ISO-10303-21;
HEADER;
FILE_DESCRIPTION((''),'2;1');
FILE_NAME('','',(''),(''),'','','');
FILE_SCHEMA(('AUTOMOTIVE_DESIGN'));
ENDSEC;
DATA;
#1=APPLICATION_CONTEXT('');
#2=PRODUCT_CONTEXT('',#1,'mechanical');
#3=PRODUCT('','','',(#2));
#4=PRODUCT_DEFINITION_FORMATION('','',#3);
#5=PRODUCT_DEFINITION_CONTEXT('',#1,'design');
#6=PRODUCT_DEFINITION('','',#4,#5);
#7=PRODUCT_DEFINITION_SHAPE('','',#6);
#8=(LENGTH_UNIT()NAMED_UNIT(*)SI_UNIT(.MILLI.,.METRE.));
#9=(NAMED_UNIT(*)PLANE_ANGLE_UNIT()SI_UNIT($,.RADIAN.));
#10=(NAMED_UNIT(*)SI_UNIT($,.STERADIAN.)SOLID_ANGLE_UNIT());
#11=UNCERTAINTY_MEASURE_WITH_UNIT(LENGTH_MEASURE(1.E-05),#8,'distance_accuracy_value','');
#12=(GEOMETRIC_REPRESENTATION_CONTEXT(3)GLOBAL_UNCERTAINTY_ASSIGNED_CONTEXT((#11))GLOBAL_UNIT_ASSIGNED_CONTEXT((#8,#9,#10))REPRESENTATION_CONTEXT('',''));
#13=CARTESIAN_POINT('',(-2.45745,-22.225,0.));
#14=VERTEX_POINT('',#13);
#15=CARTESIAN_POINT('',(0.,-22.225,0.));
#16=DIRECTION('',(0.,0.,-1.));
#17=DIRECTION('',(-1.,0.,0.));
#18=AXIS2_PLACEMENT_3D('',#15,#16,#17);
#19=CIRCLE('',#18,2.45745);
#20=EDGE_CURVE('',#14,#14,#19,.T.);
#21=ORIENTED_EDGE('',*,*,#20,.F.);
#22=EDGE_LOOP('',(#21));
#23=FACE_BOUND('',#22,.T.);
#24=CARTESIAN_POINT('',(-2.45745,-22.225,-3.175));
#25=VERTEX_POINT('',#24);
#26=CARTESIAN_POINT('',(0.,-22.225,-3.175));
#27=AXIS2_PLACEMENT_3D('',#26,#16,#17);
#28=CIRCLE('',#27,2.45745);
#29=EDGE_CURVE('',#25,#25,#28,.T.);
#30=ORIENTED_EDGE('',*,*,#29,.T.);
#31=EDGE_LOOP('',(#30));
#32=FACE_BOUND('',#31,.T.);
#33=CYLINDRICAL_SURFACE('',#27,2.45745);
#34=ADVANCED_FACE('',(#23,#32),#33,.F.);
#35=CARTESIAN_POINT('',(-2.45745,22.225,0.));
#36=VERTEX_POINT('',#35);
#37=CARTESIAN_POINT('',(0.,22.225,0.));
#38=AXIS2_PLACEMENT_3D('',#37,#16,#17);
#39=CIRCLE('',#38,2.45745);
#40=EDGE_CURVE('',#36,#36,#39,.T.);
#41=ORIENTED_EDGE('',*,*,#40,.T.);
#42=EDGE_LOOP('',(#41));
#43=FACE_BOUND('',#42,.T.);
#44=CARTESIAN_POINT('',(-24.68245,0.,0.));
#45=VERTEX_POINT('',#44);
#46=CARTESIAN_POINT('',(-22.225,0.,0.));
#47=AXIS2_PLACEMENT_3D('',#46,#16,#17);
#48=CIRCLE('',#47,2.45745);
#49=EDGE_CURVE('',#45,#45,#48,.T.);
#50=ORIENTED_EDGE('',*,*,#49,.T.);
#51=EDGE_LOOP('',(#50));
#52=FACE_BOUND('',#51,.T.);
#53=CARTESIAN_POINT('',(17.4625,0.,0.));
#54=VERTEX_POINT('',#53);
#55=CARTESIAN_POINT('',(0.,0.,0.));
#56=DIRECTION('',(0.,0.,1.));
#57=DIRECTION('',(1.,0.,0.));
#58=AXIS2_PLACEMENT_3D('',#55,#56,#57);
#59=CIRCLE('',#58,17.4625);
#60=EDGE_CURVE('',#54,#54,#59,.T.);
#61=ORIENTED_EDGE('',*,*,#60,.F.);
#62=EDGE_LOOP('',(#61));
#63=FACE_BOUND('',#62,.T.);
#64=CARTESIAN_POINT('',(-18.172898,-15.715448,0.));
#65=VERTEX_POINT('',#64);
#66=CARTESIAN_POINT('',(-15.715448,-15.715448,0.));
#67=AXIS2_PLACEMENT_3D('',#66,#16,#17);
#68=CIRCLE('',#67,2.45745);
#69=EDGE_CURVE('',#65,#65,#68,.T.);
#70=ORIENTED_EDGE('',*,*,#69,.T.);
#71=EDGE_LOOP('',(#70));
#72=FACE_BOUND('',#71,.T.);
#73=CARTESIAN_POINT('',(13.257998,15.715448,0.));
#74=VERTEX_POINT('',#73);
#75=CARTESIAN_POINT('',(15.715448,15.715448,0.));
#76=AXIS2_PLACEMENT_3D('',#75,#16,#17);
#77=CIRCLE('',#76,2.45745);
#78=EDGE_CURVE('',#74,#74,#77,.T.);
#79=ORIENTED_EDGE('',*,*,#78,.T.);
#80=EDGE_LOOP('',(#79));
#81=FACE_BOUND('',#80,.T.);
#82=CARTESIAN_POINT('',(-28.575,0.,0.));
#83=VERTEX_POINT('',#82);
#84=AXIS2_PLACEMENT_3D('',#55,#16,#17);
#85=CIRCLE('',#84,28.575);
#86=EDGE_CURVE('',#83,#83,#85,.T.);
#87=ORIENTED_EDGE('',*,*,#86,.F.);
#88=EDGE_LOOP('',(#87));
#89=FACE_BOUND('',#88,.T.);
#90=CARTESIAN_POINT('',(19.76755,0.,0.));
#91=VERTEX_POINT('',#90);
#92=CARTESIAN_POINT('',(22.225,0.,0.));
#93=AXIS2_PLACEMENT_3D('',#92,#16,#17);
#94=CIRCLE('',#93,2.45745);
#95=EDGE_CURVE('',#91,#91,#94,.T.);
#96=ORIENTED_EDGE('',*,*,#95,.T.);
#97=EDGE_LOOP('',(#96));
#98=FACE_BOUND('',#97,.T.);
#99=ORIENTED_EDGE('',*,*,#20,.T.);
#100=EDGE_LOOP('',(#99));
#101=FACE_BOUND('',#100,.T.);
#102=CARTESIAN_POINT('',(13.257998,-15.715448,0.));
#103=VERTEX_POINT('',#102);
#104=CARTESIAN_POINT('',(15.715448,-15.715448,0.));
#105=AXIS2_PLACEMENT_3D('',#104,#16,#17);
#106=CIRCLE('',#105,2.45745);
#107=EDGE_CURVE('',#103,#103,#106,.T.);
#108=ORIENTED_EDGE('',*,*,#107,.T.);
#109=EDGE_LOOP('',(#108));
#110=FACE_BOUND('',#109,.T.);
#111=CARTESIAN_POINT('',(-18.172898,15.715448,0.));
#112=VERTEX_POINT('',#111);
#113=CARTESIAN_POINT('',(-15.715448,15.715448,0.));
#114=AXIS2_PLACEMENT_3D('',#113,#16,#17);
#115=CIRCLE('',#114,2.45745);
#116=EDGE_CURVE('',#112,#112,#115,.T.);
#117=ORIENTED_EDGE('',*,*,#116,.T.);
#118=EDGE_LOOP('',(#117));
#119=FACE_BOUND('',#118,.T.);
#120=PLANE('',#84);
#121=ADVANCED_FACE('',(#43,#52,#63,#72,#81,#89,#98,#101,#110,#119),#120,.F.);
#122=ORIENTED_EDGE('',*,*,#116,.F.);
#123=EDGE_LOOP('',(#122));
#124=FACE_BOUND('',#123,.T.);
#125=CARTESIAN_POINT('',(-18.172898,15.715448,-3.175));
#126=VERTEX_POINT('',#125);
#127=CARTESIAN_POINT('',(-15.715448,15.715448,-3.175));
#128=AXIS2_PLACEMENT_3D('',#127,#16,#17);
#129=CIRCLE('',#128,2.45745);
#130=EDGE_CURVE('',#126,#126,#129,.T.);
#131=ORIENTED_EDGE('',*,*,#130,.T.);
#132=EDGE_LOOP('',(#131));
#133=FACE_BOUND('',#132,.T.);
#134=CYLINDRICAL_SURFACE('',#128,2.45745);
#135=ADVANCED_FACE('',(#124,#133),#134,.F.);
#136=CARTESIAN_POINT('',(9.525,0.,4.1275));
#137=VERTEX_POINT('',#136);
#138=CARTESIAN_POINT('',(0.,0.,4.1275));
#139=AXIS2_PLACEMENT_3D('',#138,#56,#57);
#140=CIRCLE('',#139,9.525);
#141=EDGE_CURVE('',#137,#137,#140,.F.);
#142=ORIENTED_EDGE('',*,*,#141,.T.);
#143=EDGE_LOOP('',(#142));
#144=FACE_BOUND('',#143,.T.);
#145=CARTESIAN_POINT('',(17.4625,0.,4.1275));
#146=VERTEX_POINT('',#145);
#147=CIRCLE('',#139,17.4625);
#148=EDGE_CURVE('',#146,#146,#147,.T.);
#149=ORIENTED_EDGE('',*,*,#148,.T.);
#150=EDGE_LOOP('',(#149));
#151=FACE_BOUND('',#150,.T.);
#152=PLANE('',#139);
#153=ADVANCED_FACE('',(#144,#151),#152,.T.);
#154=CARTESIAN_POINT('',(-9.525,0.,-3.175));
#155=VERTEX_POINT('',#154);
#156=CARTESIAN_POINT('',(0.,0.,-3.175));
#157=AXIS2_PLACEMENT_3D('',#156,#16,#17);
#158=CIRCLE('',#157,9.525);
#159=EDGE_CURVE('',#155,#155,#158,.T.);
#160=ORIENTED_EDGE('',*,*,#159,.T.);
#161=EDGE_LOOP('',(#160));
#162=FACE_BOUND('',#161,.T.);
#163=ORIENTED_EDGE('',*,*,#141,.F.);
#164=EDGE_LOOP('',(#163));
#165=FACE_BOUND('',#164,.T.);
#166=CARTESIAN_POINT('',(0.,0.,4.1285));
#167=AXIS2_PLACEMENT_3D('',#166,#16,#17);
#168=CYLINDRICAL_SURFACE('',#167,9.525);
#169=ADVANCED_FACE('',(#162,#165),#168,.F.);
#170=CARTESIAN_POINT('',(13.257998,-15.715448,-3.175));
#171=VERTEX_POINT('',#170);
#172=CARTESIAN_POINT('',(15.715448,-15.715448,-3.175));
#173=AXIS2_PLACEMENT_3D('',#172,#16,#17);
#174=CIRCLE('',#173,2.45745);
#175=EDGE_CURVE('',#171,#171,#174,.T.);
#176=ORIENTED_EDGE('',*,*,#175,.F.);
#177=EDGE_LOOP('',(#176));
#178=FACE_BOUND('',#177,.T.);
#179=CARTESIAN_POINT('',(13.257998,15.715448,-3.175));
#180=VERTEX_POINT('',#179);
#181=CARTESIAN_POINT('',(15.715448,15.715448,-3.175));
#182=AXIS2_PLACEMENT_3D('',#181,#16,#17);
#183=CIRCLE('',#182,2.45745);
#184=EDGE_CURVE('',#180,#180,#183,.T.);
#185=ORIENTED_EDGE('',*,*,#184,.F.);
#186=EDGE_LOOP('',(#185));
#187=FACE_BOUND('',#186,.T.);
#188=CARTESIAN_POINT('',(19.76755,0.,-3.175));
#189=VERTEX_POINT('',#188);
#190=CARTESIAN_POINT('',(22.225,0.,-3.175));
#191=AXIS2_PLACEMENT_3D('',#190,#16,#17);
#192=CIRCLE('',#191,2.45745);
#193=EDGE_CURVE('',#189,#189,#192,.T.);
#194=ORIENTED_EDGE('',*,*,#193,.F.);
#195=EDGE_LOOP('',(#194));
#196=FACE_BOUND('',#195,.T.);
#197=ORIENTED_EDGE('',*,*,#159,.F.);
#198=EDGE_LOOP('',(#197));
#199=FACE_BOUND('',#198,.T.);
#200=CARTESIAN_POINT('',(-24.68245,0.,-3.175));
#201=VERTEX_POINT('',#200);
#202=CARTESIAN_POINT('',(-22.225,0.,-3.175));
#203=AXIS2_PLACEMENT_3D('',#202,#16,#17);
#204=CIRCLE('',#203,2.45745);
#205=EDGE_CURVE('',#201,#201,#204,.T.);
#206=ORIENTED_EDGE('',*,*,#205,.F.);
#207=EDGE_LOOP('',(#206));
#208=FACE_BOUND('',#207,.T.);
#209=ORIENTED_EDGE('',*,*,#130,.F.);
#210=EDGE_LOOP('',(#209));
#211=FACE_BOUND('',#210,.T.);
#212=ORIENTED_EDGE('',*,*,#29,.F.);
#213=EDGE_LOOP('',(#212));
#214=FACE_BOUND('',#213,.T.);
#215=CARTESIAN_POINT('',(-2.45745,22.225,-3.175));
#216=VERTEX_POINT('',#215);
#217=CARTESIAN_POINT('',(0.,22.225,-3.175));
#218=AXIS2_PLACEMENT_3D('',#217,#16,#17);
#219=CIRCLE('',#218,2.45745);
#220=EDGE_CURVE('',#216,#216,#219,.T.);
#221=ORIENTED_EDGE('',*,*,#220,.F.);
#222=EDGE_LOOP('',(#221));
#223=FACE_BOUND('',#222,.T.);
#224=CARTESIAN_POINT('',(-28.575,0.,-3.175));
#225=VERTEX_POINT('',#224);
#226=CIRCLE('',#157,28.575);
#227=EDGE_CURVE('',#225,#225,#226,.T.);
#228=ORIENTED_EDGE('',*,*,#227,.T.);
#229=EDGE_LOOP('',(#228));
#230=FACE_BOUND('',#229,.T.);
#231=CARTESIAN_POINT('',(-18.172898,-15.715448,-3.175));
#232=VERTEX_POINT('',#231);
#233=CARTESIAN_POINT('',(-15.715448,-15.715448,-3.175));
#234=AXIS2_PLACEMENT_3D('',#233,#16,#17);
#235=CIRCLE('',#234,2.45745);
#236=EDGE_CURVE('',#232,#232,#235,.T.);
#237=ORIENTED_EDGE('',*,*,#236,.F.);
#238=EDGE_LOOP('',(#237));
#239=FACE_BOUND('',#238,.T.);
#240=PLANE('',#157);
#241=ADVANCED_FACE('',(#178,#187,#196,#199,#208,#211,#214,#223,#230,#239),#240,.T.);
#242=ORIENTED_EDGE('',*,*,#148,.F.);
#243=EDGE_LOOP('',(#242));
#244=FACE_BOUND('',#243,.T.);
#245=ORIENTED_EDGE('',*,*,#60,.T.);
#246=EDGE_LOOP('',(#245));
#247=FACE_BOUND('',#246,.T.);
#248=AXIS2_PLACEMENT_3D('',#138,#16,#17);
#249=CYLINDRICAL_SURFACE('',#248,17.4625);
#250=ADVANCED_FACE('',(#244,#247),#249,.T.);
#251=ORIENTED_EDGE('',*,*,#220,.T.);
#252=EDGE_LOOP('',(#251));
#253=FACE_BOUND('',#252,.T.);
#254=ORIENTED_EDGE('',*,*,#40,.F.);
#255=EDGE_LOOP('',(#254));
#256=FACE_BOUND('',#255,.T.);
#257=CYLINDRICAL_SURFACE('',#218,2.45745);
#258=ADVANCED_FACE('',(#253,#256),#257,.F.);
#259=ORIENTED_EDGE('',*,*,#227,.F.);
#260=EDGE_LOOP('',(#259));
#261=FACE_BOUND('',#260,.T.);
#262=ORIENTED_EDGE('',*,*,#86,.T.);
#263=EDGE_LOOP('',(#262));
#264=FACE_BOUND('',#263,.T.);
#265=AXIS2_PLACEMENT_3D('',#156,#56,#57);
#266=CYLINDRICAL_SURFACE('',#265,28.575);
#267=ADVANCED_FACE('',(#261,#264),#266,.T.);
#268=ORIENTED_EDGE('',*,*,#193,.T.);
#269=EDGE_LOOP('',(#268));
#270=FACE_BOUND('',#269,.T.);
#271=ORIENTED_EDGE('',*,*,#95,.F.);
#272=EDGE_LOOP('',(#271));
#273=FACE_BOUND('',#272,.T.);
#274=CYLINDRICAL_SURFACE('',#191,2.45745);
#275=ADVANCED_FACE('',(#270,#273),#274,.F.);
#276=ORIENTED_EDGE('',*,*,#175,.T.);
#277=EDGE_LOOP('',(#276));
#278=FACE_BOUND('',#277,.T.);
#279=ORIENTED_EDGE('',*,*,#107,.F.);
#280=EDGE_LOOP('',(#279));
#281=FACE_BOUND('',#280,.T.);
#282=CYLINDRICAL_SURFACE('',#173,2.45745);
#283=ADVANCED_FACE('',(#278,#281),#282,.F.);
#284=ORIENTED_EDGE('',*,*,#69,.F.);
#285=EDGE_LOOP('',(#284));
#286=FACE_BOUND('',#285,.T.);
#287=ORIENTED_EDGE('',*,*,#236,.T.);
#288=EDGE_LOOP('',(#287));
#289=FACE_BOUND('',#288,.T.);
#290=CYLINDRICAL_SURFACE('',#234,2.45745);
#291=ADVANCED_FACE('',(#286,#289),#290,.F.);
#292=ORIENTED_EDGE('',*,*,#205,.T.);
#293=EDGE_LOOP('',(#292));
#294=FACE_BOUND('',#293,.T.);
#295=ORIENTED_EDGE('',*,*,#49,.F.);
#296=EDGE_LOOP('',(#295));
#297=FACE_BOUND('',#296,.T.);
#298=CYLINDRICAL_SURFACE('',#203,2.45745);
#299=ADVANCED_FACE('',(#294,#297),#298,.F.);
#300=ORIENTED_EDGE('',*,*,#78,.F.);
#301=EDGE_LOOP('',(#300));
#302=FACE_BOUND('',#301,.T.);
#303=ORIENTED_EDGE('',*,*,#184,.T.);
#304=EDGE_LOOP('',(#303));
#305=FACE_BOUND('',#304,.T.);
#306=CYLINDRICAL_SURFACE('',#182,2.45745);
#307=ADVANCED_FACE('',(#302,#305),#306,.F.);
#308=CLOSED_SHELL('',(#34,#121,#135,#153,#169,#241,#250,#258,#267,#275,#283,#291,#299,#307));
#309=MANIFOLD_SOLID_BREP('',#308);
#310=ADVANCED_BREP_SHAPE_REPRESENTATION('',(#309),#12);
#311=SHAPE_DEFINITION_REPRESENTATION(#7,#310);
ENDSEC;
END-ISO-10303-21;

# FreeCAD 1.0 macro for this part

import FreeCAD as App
import Part
import Sketcher
from FreeCAD import Vector
Q = App.Units.Quantity

doc = App.newDocument("Part")
params = doc.addObject("Spreadsheet::Sheet", "Params")
for row, (alias, value) in enumerate([
    ("sketch1_diameter", "1.375 in"),
    ("pad1_length", "0.1625 in"),
    ("sketch2_diameter", "2.25 in"),
    ("pad2_length", "0.125 in"),
    ("hole_diameter", "0.1935 in"),
    ("sketch4_diameter", "0.75 in"),
], start=1):
    params.set(f"A{row}", alias)
    params.set(f"B{row}", "=" + value)
    params.setAlias(f"B{row}", alias)

body = doc.addObject("PartDesign::Body", "Body")

sketch1 = body.newObject("Sketcher::SketchObject", "Sketch")
sketch1.AttachmentSupport = (doc.getObject("XY_Plane"), [""])
sketch1.MapMode = "FlatFace"
sketch1.addGeometry(Part.Circle(Vector(0, 0, 0), Vector(0, 0, 1), 17), False)
sketch1.addConstraint([
    Sketcher.Constraint("Coincident", 0, 3, -1, 1),
    Sketcher.Constraint("Diameter", 0, Q("1.375 in")),
])
sketch1.setExpression("Constraints[1]", "Params.sketch1_diameter")
pad1 = body.newObject("PartDesign::Pad", "Pad")
pad1.Profile = sketch1
pad1.setExpression("Length", "Params.pad1_length")

sketch2 = body.newObject("Sketcher::SketchObject", "Sketch001")
sketch2.AttachmentSupport = (doc.getObject("XY_Plane"), [""])
sketch2.MapMode = "FlatFace"
sketch2.addGeometry(Part.Circle(Vector(0, 0, 0), Vector(0, 0, 1), 29), False)
sketch2.addConstraint([
    Sketcher.Constraint("Coincident", 0, 3, -1, 1),
    Sketcher.Constraint("Diameter", 0, Q("2.25 in")),
])
sketch2.setExpression("Constraints[1]", "Params.sketch2_diameter")
pad2 = body.newObject("PartDesign::Pad", "Pad001")
pad2.Profile = sketch2
pad2.setExpression("Length", "Params.pad2_length")
pad2.Reversed = True

sketch3 = body.newObject("Sketcher::SketchObject", "Sketch002")
sketch3.AttachmentSupport = (doc.getObject("XY_Plane"), [""])
sketch3.MapMode = "FlatFace"
sketch3.AttachmentOffset = App.Placement(Vector(0, 0, -0.125 * 25.4), App.Rotation())
sketch3.addGeometry(Part.Circle(Vector(0, 22.2, 0), Vector(0, 0, 1), 2.5), False)
sketch3.addConstraint([
    Sketcher.Constraint("PointOnObject", 0, 3, -2),
    Sketcher.Constraint("Diameter", 0, Q("0.1935 in")),
    Sketcher.Constraint("DistanceY", -1, 1, 0, 3, Q("0.875 in")),
])
doc.recompute()
hole = body.newObject("PartDesign::Hole", "Hole")
hole.Profile = sketch3
hole.ThreadType = "None"
hole.setExpression("Diameter", "Params.hole_diameter")
hole.DepthType = "ThroughAll"
hole.Reversed = True
doc.recompute()

polarpattern = body.newObject("PartDesign::PolarPattern", "PolarPattern")
polarpattern.Originals = [hole]
polarpattern.Axis = (doc.getObject("Z_Axis"), [""])
polarpattern.Angle = 360
polarpattern.Occurrences = 8
body.Tip = polarpattern

sketch4 = body.newObject("Sketcher::SketchObject", "Sketch003")
sketch4.AttachmentSupport = (doc.getObject("XY_Plane"), [""])
sketch4.MapMode = "FlatFace"
sketch4.AttachmentOffset = App.Placement(Vector(0, 0, -0.125 * 25.4), App.Rotation())
sketch4.addGeometry(Part.Circle(Vector(0, 0, 0), Vector(0, 0, 1), 10), False)
sketch4.addConstraint([
    Sketcher.Constraint("Coincident", 0, 3, -1, 1),
    Sketcher.Constraint("Diameter", 0, Q("0.75 in")),
])
sketch4.setExpression("Constraints[1]", "Params.sketch4_diameter")
pocket1 = body.newObject("PartDesign::Pocket", "Pocket")
pocket1.Profile = sketch4
pocket1.Type = "UpToFirst"
pocket1.Reversed = True

doc.recompute()
